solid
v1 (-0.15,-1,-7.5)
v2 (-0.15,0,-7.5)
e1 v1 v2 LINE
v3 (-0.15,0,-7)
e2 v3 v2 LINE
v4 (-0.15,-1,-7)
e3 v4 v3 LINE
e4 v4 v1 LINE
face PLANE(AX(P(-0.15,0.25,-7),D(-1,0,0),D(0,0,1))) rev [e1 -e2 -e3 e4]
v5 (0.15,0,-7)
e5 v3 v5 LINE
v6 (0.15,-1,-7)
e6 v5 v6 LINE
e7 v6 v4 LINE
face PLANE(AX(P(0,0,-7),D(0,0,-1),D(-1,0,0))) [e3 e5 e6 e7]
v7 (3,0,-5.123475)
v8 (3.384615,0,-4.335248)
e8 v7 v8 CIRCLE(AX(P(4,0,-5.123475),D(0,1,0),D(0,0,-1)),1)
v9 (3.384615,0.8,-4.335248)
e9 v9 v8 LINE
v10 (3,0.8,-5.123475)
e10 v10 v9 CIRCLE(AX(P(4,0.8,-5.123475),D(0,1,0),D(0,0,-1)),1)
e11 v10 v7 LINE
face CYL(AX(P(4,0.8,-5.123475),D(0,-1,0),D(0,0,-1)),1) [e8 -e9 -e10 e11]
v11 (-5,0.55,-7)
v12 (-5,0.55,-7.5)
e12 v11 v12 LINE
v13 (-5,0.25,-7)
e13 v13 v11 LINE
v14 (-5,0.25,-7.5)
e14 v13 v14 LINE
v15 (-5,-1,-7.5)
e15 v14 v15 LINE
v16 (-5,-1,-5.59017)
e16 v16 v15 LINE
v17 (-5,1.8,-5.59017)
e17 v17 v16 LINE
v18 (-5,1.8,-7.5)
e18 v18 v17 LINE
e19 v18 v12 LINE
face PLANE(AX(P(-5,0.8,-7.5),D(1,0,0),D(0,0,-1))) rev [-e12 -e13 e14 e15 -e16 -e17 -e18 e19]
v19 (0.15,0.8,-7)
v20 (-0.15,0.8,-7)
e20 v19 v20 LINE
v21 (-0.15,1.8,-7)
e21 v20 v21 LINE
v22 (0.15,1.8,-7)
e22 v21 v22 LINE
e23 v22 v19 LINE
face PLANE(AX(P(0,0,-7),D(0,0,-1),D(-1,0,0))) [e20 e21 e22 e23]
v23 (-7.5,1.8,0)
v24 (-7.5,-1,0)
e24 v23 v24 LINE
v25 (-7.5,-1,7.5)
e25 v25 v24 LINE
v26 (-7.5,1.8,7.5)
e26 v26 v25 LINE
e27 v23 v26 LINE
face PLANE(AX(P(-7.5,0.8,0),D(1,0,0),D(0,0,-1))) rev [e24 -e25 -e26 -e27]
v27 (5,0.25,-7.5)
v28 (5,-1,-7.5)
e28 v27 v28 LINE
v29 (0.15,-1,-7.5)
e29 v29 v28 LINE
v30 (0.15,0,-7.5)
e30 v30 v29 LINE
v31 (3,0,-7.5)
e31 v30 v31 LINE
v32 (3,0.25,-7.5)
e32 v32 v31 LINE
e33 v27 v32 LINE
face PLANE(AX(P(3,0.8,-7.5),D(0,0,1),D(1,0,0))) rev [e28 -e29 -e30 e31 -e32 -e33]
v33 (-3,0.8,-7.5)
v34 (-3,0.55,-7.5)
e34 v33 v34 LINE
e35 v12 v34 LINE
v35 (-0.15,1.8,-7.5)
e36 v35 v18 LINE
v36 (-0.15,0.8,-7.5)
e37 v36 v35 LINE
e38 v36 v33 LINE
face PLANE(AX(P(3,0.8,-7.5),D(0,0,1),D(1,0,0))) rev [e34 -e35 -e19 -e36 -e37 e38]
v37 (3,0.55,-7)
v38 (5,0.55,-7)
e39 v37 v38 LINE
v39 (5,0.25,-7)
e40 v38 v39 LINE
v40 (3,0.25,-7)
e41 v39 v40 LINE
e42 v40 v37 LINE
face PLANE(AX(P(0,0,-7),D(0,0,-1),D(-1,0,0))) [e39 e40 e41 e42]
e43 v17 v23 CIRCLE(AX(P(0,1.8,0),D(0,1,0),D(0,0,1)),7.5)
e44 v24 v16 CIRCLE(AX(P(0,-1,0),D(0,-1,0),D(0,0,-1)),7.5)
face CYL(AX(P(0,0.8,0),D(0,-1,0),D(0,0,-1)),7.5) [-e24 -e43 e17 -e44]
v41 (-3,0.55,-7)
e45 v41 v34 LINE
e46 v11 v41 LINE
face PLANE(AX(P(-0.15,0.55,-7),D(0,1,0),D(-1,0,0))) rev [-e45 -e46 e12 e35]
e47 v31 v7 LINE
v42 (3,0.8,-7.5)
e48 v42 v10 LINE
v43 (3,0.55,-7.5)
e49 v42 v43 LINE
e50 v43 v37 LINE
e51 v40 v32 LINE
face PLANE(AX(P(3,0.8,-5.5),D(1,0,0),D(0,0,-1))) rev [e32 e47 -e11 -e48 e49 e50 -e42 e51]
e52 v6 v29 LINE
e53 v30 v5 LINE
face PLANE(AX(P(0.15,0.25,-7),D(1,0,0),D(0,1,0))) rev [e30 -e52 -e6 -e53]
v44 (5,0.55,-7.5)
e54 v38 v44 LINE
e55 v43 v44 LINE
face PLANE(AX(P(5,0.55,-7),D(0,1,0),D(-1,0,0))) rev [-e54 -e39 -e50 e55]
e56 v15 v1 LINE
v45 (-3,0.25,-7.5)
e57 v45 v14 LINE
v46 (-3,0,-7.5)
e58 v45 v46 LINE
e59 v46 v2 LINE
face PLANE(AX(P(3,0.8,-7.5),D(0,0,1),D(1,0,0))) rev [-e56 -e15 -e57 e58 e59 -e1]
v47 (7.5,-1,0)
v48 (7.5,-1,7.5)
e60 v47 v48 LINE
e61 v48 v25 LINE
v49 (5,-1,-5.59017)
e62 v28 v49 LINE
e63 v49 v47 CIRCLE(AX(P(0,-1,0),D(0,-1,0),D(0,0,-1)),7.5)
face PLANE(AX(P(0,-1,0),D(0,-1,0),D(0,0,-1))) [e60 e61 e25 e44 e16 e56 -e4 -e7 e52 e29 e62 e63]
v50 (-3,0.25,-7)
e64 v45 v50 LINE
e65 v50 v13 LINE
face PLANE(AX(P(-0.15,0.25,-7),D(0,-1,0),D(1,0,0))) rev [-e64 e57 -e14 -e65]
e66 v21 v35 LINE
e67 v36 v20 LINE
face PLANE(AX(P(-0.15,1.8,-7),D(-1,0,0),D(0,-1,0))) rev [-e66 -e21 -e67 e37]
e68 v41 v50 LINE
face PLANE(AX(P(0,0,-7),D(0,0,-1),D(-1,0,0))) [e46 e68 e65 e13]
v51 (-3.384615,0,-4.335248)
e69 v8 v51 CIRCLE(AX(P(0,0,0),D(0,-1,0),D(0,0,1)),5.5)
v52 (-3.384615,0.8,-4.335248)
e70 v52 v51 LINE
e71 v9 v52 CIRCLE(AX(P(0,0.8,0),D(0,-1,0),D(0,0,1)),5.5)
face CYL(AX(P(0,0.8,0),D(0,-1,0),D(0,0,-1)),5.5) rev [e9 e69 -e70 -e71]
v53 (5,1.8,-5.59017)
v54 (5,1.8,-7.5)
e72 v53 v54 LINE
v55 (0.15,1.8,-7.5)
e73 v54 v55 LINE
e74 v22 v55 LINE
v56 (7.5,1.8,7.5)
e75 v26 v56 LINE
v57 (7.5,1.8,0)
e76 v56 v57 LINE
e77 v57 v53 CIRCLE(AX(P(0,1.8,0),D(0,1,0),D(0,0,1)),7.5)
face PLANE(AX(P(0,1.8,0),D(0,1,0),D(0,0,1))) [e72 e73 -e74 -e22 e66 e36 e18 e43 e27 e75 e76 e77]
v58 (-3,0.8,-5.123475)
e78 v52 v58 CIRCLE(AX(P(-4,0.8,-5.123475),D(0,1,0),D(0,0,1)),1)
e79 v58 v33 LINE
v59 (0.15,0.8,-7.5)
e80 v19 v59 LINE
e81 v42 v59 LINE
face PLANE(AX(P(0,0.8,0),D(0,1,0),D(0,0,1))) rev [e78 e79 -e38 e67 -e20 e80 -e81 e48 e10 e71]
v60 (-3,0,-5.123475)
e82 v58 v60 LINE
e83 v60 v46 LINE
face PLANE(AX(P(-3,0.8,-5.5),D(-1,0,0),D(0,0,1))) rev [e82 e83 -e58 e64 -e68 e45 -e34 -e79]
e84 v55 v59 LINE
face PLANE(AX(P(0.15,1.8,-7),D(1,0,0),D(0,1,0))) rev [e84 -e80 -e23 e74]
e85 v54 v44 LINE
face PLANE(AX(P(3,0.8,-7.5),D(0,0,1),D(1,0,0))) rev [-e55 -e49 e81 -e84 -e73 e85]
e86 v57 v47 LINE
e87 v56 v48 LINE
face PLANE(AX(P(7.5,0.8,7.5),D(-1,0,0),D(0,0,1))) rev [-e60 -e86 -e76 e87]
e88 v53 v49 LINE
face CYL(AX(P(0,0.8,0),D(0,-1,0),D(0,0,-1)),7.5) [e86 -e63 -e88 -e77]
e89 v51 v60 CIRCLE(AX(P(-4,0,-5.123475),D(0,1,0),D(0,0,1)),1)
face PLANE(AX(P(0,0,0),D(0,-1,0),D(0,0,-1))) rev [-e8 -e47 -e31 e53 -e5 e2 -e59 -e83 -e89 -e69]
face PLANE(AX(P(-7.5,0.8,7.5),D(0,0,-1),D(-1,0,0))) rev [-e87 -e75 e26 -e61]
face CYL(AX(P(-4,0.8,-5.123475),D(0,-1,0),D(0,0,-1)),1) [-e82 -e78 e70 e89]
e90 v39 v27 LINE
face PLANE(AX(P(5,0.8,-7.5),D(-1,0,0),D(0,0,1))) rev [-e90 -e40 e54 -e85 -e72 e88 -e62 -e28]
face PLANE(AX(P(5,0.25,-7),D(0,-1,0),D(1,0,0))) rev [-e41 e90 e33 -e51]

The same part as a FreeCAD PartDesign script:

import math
import FreeCAD as App
import Part
import Sketcher

V = App.Vector


def add_polygon(sketch, points):
    """Adds a closed chain of lines whose ends are joined by coincident constraints."""
    first, n = sketch.GeometryCount, len(points)
    for a, b in zip(points, points[1:] + points[:1]):
        sketch.addGeometry(Part.LineSegment(App.Vector(*a, 0), App.Vector(*b, 0)), False)
    for i in range(n):
        sketch.addConstraint(Sketcher.Constraint("Coincident", first + i, 2, first + (i + 1) % n, 1))

doc = App.newDocument("Part")
body = doc.addObject("PartDesign::Body", "Body")

sketch1 = body.newObject("Sketcher::SketchObject", "Sketch")
sketch1.AttachmentSupport = (doc.getObject("XZ_Plane"), [""])
sketch1.MapMode = "FlatFace"
sketch1.addGeometry([
    Part.LineSegment(V(-5, -7.5, 0), V(-5, -5.59017, 0)),
    Part.ArcOfCircle(Part.Circle(V(0, 0, 0), V(0, 0, 1), 7.5), math.radians(180), math.radians(228.189685)),
    Part.LineSegment(V(-7.5, 0, 0), V(-7.5, 7.5, 0)),
    Part.LineSegment(V(-7.5, 7.5, 0), V(7.5, 7.5, 0)),
    Part.LineSegment(V(7.5, 7.5, 0), V(7.5, 0, 0)),
    Part.ArcOfCircle(Part.Circle(V(0, 0, 0), V(0, 0, 1), 7.5), math.radians(-48.189685), math.radians(0)),
    Part.LineSegment(V(5, -5.59017, 0), V(5, -7.5, 0)),
    Part.LineSegment(V(5, -7.5, 0), V(3, -7.5, 0)),
    Part.LineSegment(V(3, -7.5, 0), V(3, -5.123475, 0)),
    Part.ArcOfCircle(Part.Circle(V(4, -5.123475, 0), V(0, 0, 1), 1), math.radians(127.979872), math.radians(180)),
    Part.ArcOfCircle(Part.Circle(V(0, 0, 0), V(0, 0, 1), 5.5), math.radians(-52.020128), math.radians(232.020128)),
    Part.ArcOfCircle(Part.Circle(V(-4, -5.123475, 0), V(0, 0, 1), 1), math.radians(0), math.radians(52.020128)),
    Part.LineSegment(V(-3, -5.123475, 0), V(-3, -7.5, 0)),
    Part.LineSegment(V(-3, -7.5, 0), V(-5, -7.5, 0)),
], False)
sketch1.addConstraint([
    Sketcher.Constraint("Coincident", 0, 2, 1, 2),
    Sketcher.Constraint("Tangent", 1, 1, 2, 1),
    Sketcher.Constraint("Coincident", 2, 2, 3, 1),
    Sketcher.Constraint("Coincident", 3, 2, 4, 1),
    Sketcher.Constraint("Tangent", 4, 2, 5, 2),
    Sketcher.Constraint("Coincident", 5, 1, 6, 1),
    Sketcher.Constraint("Coincident", 6, 2, 7, 1),
    Sketcher.Constraint("Coincident", 7, 2, 8, 1),
    Sketcher.Constraint("Tangent", 8, 2, 9, 2),
    Sketcher.Constraint("Tangent", 9, 1, 10, 1),
    Sketcher.Constraint("Tangent", 10, 2, 11, 2),
    Sketcher.Constraint("Tangent", 11, 1, 12, 1),
    Sketcher.Constraint("Coincident", 12, 2, 13, 1),
    Sketcher.Constraint("Coincident", 13, 2, 0, 1),
    Sketcher.Constraint("Vertical", 0),
    Sketcher.Constraint("Vertical", 2),
    Sketcher.Constraint("Horizontal", 3),
    Sketcher.Constraint("Vertical", 4),
    Sketcher.Constraint("Vertical", 6),
    Sketcher.Constraint("Horizontal", 7),
    Sketcher.Constraint("Vertical", 8),
    Sketcher.Constraint("Vertical", 12),
    Sketcher.Constraint("Horizontal", 13),
    Sketcher.Constraint("Coincident", 1, 3, -1, 1),
    Sketcher.Constraint("Coincident", 5, 3, -1, 1),
    Sketcher.Constraint("Coincident", 10, 3, -1, 1),
    Sketcher.Constraint("Equal", 1, 5),
    Sketcher.Constraint("Equal", 9, 11),
    Sketcher.Constraint("Symmetric", 7, 2, 12, 2, -2),
    Sketcher.Constraint("Horizontal", 0, 2, 5, 1),
    Sketcher.Constraint("Radius", 9, 1.0),
    Sketcher.Constraint("Radius", 1, 7.5),
    Sketcher.Constraint("Radius", 10, 5.5),
    Sketcher.Constraint("DistanceX", 7, 2, 7, 1, 2.0),
    Sketcher.Constraint("DistanceY", 2, 1, 2, 2, 7.5),
    Sketcher.Constraint("DistanceX", -1, 1, 9, 3, 4.0),
    Sketcher.Constraint("DistanceY", 6, 2, -1, 1, 7.5),
])
pad1 = body.newObject("PartDesign::Pad", "Pad")
pad1.Profile = sketch1
pad1.Length = 0.8
pad1.Reversed = True

sketch2 = body.newObject("Sketcher::SketchObject", "Sketch001")
sketch2.AttachmentSupport = (doc.getObject("XZ_Plane"), [""])
sketch2.MapMode = "FlatFace"
sketch2.AttachmentOffset = App.Placement(V(0, 0, -0.8), App.Rotation())
sketch2.addGeometry([
    Part.LineSegment(V(5, -5.59017, 0), V(5, -7.5, 0)),
    Part.LineSegment(V(5, -7.5, 0), V(-5, -7.5, 0)),
    Part.LineSegment(V(-5, -7.5, 0), V(-5, -5.59017, 0)),
    Part.ArcOfCircle(Part.Circle(V(0, 0, 0), V(0, 0, 1), 7.5), math.radians(180), math.radians(228.189685)),
    Part.LineSegment(V(-7.5, 0, 0), V(-7.5, 7.5, 0)),
    Part.LineSegment(V(-7.5, 7.5, 0), V(7.5, 7.5, 0)),
    Part.LineSegment(V(7.5, 7.5, 0), V(7.5, 0, 0)),
    Part.ArcOfCircle(Part.Circle(V(0, 0, 0), V(0, 0, 1), 7.5), math.radians(-48.189685), math.radians(0)),
], False)
sketch2.addConstraint([
    Sketcher.Constraint("Coincident", 0, 2, 1, 1),
    Sketcher.Constraint("Coincident", 1, 2, 2, 1),
    Sketcher.Constraint("Coincident", 2, 2, 3, 2),
    Sketcher.Constraint("Tangent", 3, 1, 4, 1),
    Sketcher.Constraint("Coincident", 4, 2, 5, 1),
    Sketcher.Constraint("Coincident", 5, 2, 6, 1),
    Sketcher.Constraint("Tangent", 6, 2, 7, 2),
    Sketcher.Constraint("Coincident", 7, 1, 0, 1),
    Sketcher.Constraint("Vertical", 0),
    Sketcher.Constraint("Horizontal", 1),
    Sketcher.Constraint("Vertical", 2),
    Sketcher.Constraint("Vertical", 4),
    Sketcher.Constraint("Horizontal", 5),
    Sketcher.Constraint("Vertical", 6),
    Sketcher.Constraint("Coincident", 3, 3, -1, 1),
    Sketcher.Constraint("Coincident", 7, 3, -1, 1),
    Sketcher.Constraint("Equal", 3, 7),
    Sketcher.Constraint("Horizontal", 2, 2, 7, 1),
    Sketcher.Constraint("Radius", 3, 7.5),
    Sketcher.Constraint("DistanceX", 1, 2, 1, 1, 10.0),
    Sketcher.Constraint("DistanceY", 4, 1, 4, 2, 7.5),
    Sketcher.Constraint("DistanceY", 1, 2, 4, 2, 15.0),
])
pad2 = body.newObject("PartDesign::Pad", "Pad001")
pad2.Profile = sketch2
pad2.Length = 1
pad2.Reversed = True

sketch3 = body.newObject("Sketcher::SketchObject", "Sketch002")
sketch3.AttachmentSupport = (doc.getObject("XZ_Plane"), [""])
sketch3.MapMode = "FlatFace"
sketch3.AttachmentOffset = App.Placement(V(0, 0, 1), App.Rotation())
sketch3.addGeometry([
    Part.LineSegment(V(-5, -5.59017, 0), V(-5, -7.5, 0)),
    Part.LineSegment(V(-5, -7.5, 0), V(5, -7.5, 0)),
    Part.LineSegment(V(5, -7.5, 0), V(5, -5.59017, 0)),
    Part.ArcOfCircle(Part.Circle(V(0, 0, 0), V(0, 0, 1), 7.5), math.radians(-48.189685), math.radians(0)),
    Part.LineSegment(V(7.5, 0, 0), V(7.5, 7.5, 0)),
    Part.LineSegment(V(7.5, 7.5, 0), V(-7.5, 7.5, 0)),
    Part.LineSegment(V(-7.5, 7.5, 0), V(-7.5, 0, 0)),
    Part.ArcOfCircle(Part.Circle(V(0, 0, 0), V(0, 0, 1), 7.5), math.radians(180), math.radians(228.189685)),
], False)
sketch3.addConstraint([
    Sketcher.Constraint("Coincident", 0, 2, 1, 1),
    Sketcher.Constraint("Coincident", 1, 2, 2, 1),
    Sketcher.Constraint("Coincident", 2, 2, 3, 1),
    Sketcher.Constraint("Tangent", 3, 2, 4, 1),
    Sketcher.Constraint("Coincident", 4, 2, 5, 1),
    Sketcher.Constraint("Coincident", 5, 2, 6, 1),
    Sketcher.Constraint("Tangent", 6, 2, 7, 1),
    Sketcher.Constraint("Coincident", 7, 2, 0, 1),
    Sketcher.Constraint("Vertical", 0),
    Sketcher.Constraint("Horizontal", 1),
    Sketcher.Constraint("Vertical", 2),
    Sketcher.Constraint("Vertical", 4),
    Sketcher.Constraint("Horizontal", 5),
    Sketcher.Constraint("Vertical", 6),
    Sketcher.Constraint("Coincident", 3, 3, -1, 1),
    Sketcher.Constraint("Coincident", 7, 3, -1, 1),
    Sketcher.Constraint("Equal", 3, 7),
    Sketcher.Constraint("Horizontal", 2, 2, 7, 2),
    Sketcher.Constraint("Radius", 3, 7.5),
    Sketcher.Constraint("DistanceX", 1, 1, 1, 2, 10.0),
    Sketcher.Constraint("DistanceY", 4, 1, 4, 2, 7.5),
    Sketcher.Constraint("DistanceY", 1, 2, 4, 2, 15.0),
])
pad3 = body.newObject("PartDesign::Pad", "Pad002")
pad3.Profile = sketch3
pad3.Length = 1
pad3.Reversed = True

sketch4 = body.newObject("Sketcher::SketchObject", "Sketch003")
sketch4.AttachmentSupport = (doc.getObject("XY_Plane"), [""])
sketch4.MapMode = "FlatFace"
sketch4.AttachmentOffset = App.Placement(V(0, 0, -7.5), App.Rotation())
add_polygon(sketch4, [(0.15, 0.55), (5, 0.55), (5, 0.25), (0.15, 0.25), (0.15, -1), (-0.15, -1), (-0.15, 0.25), (-5, 0.25), (-5, 0.55), (-0.15, 0.55), (-0.15, 1.8), (0.15, 1.8)])
sketch4.addConstraint([
    Sketcher.Constraint("Horizontal", 0),
    Sketcher.Constraint("Vertical", 1),
    Sketcher.Constraint("Horizontal", 2),
    Sketcher.Constraint("Vertical", 3),
    Sketcher.Constraint("Horizontal", 4),
    Sketcher.Constraint("Vertical", 5),
    Sketcher.Constraint("Horizontal", 6),
    Sketcher.Constraint("Vertical", 7),
    Sketcher.Constraint("Horizontal", 8),
    Sketcher.Constraint("Vertical", 9),
    Sketcher.Constraint("Horizontal", 10),
    Sketcher.Constraint("Vertical", 11),
    Sketcher.Constraint("Symmetric", 2, 2, 5, 2, -2),
    Sketcher.Constraint("Symmetric", 0, 2, 7, 2, -2),
    Sketcher.Constraint("Vertical", 5, 2, 8, 2),
    Sketcher.Constraint("Vertical", 3, 2, 10, 2),
    Sketcher.Constraint("Equal", 10, 1),
    Sketcher.Constraint("Equal", 5, 9),
    Sketcher.Constraint("DistanceX", 4, 2, 4, 1, 0.3),
    Sketcher.Constraint("DistanceX", -1, 1, 0, 2, 5.0),
    Sketcher.Constraint("DistanceY", 3, 2, -1, 1, 1.0),
    Sketcher.Constraint("DistanceY", 3, 2, 3, 1, 1.25),
])
pocket1 = body.newObject("PartDesign::Pocket", "Pocket")
pocket1.Profile = sketch4
pocket1.Length = 0.5
pocket1.Reversed = True

doc.recompute()
